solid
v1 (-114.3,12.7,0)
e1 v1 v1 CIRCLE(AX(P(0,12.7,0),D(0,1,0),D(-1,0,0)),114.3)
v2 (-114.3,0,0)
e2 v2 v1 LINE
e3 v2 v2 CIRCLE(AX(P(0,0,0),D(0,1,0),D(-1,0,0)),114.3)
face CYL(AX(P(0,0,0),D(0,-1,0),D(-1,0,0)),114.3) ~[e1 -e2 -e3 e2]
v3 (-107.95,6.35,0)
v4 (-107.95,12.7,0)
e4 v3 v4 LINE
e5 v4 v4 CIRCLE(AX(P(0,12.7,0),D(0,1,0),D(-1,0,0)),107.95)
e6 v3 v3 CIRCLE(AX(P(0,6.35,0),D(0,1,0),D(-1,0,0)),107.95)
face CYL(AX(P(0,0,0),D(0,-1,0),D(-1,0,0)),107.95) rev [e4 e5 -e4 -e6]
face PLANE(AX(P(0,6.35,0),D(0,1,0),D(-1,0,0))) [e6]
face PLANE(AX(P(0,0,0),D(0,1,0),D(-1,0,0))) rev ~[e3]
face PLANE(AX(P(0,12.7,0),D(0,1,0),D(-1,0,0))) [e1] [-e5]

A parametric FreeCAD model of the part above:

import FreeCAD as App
import Part
import Sketcher
from FreeCAD import Vector
Q = App.Units.Quantity


def add_polygon(sketch, points):
    """Adds a closed chain of lines whose ends are joined by coincident constraints."""
    first, n = sketch.GeometryCount, len(points)
    for a, b in zip(points, points[1:] + points[:1]):
        sketch.addGeometry(Part.LineSegment(App.Vector(*a, 0), App.Vector(*b, 0)), False)
    for i in range(n):
        sketch.addConstraint(Sketcher.Constraint("Coincident", first + i, 2, first + (i + 1) % n, 1))

doc = App.newDocument("Part")
body = doc.addObject("PartDesign::Body", "Body")

sketch1 = body.newObject("Sketcher::SketchObject", "Sketch")
sketch1.AttachmentSupport = (doc.getObject("XZ_Plane"), [""])
sketch1.MapMode = "FlatFace"
sketch1.addGeometry(Part.Circle(Vector(0, 0, 0), Vector(0, 0, 1), 108), False)
add_polygon(sketch1, [(-64, -64), (64, -64), (64, 64), (-64, 64)])
sketch1.addConstraint([
    Sketcher.Constraint("Horizontal", 1),
    Sketcher.Constraint("Vertical", 2),
    Sketcher.Constraint("Horizontal", 3),
    Sketcher.Constraint("Vertical", 4),
    Sketcher.Constraint("Coincident", 0, 3, -1, 1),
    Sketcher.Constraint("Symmetric", 1, 2, 3, 2, -1, 1),
    Sketcher.Constraint("Equal", 3, 2),
    Sketcher.Constraint("DistanceX", 1, 1, 1, 2, Q("5 in")),
    Sketcher.Constraint("Diameter", 0, Q("8.5 in")),
])
pad1 = body.newObject("PartDesign::Pad", "Pad")
pad1.Profile = sketch1
pad1.Length = Q("0.25 in")
pad1.Reversed = True

sketch2 = body.newObject("Sketcher::SketchObject", "Sketch001")
sketch2.AttachmentSupport = (doc.getObject("XZ_Plane"), [""])
sketch2.MapMode = "FlatFace"
sketch2.addGeometry([
    Part.Circle(Vector(0, 0, 0), Vector(0, 0, 1), 114),
    Part.Circle(Vector(0, 0, 0), Vector(0, 0, 1), 108),
], False)
sketch2.addConstraint([
    Sketcher.Constraint("Coincident", 0, 3, -1, 1),
    Sketcher.Constraint("Coincident", 1, 3, -1, 1),
    Sketcher.Constraint("Diameter", 0, Q("9 in")),
    Sketcher.Constraint("Diameter", 1, Q("8.5 in")),
])
pad2 = body.newObject("PartDesign::Pad", "Pad001")
pad2.Profile = sketch2
pad2.Length = Q("0.5 in")
pad2.Reversed = True

sketch3 = body.newObject("Sketcher::SketchObject", "Sketch002")
sketch3.AttachmentSupport = (doc.getObject("XZ_Plane"), [""])
sketch3.MapMode = "FlatFace"
add_polygon(sketch3, [(64, 64), (64, -64), (-64, -64), (-64, 64)])
sketch3.addConstraint([
    Sketcher.Constraint("Vertical", 0),
    Sketcher.Constraint("Horizontal", 1),
    Sketcher.Constraint("Vertical", 2),
    Sketcher.Constraint("Horizontal", 3),
    Sketcher.Constraint("Symmetric", 0, 2, 2, 2, -1, 1),
    Sketcher.Constraint("Equal", 3, 0),
    Sketcher.Constraint("DistanceX", 1, 2, 1, 1, Q("5 in")),
])
pad3 = body.newObject("PartDesign::Pad", "Pad002")
pad3.Profile = sketch3
pad3.Length = Q("0.25 in")
pad3.Reversed = True

doc.recompute()
